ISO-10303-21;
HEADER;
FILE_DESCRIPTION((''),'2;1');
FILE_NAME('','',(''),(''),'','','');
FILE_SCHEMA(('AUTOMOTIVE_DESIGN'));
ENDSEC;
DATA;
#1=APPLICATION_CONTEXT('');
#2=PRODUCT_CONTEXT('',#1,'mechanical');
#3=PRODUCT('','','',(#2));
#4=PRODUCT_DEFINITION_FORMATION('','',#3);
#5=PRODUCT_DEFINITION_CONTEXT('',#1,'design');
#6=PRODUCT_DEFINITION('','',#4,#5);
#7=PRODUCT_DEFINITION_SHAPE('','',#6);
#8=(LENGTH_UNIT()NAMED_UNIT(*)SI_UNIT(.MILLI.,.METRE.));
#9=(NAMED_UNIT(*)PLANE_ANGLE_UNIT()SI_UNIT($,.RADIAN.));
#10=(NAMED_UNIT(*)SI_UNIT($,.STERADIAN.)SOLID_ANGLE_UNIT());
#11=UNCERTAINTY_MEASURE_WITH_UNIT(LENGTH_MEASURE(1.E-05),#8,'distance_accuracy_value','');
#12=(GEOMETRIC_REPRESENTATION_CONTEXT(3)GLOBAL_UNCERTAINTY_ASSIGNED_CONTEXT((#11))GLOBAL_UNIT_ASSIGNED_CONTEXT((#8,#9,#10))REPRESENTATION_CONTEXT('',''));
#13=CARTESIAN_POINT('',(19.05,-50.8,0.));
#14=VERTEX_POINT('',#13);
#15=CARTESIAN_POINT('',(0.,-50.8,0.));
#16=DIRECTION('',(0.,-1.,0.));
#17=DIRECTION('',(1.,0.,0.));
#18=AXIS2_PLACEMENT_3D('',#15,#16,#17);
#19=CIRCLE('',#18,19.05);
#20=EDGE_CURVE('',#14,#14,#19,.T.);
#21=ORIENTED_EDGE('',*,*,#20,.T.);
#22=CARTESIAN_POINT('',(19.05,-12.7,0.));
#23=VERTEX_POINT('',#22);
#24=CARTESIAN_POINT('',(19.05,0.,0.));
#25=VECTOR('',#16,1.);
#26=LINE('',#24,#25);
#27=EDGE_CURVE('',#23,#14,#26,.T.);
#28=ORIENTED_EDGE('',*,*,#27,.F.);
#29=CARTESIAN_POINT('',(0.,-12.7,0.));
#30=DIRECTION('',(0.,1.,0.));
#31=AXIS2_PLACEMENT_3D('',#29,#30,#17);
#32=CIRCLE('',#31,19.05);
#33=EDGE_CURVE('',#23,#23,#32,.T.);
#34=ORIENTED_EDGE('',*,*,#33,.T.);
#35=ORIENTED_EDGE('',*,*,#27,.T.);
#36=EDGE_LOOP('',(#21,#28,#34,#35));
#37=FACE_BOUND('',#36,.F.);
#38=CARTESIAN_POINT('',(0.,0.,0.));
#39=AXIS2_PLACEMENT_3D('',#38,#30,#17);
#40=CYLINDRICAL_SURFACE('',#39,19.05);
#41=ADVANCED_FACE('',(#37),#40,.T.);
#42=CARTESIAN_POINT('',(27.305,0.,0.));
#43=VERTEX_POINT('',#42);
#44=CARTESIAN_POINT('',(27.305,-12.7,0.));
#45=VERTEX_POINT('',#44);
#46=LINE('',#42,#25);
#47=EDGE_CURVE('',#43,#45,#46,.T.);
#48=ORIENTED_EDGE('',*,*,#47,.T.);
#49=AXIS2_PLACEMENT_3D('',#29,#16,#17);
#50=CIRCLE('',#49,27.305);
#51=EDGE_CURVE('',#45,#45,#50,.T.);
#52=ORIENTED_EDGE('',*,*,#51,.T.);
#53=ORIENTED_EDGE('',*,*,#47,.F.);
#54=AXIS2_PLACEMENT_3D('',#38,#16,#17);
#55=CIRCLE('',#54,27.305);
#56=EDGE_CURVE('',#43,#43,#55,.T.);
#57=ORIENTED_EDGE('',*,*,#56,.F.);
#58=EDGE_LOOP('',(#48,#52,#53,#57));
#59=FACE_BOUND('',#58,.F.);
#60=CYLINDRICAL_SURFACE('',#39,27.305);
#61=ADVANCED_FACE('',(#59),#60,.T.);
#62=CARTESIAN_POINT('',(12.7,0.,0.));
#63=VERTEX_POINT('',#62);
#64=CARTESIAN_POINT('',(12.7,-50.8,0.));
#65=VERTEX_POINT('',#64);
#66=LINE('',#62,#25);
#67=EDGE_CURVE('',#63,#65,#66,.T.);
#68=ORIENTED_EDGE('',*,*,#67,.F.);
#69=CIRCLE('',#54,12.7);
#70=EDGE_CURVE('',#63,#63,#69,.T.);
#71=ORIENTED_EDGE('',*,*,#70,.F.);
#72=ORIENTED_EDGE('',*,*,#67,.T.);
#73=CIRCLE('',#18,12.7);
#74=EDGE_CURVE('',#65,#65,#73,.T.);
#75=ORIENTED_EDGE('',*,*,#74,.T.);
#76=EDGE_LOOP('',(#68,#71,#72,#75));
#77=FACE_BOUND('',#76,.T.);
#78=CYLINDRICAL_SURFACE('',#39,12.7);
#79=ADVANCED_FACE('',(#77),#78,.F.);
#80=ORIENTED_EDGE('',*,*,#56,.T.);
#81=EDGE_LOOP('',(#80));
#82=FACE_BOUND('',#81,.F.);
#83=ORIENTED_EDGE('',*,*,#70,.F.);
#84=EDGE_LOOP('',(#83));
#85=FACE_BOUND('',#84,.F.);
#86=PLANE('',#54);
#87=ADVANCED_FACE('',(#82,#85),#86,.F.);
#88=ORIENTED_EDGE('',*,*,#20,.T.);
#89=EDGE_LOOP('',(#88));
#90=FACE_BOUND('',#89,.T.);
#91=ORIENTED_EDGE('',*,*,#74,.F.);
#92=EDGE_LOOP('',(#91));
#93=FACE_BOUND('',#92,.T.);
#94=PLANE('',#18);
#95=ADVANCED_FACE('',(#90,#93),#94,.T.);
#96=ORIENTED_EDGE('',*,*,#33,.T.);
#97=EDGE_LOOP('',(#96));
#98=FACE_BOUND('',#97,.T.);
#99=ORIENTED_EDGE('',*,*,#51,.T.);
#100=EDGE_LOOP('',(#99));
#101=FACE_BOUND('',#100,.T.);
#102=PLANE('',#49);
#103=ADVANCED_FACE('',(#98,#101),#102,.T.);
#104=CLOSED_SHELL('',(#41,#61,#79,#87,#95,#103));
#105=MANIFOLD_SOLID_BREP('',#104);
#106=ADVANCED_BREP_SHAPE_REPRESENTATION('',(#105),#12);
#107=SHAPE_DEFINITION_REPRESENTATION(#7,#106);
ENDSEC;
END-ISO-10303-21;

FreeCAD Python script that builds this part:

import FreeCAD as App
import Part
import Sketcher
Q = App.Units.Quantity

doc = App.newDocument("Part")
body = doc.addObject("PartDesign::Body", "Body")

sketch1 = body.newObject("Sketcher::SketchObject", "Sketch")
sketch1.AttachmentSupport = (doc.getObject("XZ_Plane"), [""])
sketch1.MapMode = "FlatFace"
sketch1.addGeometry([
    Part.Circle(App.Vector(0, 0, 0), App.Vector(0, 0, 1), 19),
    Part.Circle(App.Vector(0, 0, 0), App.Vector(0, 0, 1), 13),
], False)
sketch1.addConstraint([
    Sketcher.Constraint("Coincident", 0, 3, -1, 1),
    Sketcher.Constraint("Coincident", 1, 3, -1, 1),
    Sketcher.Constraint("Diameter", 1, Q("1 in")),
    Sketcher.Constraint("Diameter", 0, Q("1.5 in")),
])
pad1 = body.newObject("PartDesign::Pad", "Pad")
pad1.Profile = sketch1
pad1.Length = Q("2 in")

sketch2 = body.newObject("Sketcher::SketchObject", "Sketch001")
sketch2.AttachmentSupport = (doc.getObject("XZ_Plane"), [""])
sketch2.MapMode = "FlatFace"
sketch2.addGeometry(Part.Circle(App.Vector(0, 0, 0), App.Vector(0, 0, 1), 27), False)
sketch2.addConstraint([
    Sketcher.Constraint("Coincident", 0, 3, -1, 1),
    Sketcher.Constraint("Diameter", 0, Q("2.15 in")),
])
pad2 = body.newObject("PartDesign::Pad", "Pad001")
pad2.Profile = sketch2
pad2.Length = Q("0.5 in")

sketch3 = body.newObject("Sketcher::SketchObject", "Sketch002")
sketch3.AttachmentSupport = (doc.getObject("XZ_Plane"), [""])
sketch3.MapMode = "FlatFace"
sketch3.addGeometry(Part.Circle(App.Vector(0, 0, 0), App.Vector(0, 0, 1), 13), False)
sketch3.addConstraint([
    Sketcher.Constraint("Coincident", 0, 3, -1, 1),
    Sketcher.Constraint("Diameter", 0, Q("1 in")),
])
pocket1 = body.newObject("PartDesign::Pocket", "Pocket")
pocket1.Profile = sketch3
pocket1.Length = 42.750418
pocket1.Reversed = True

doc.recompute()
